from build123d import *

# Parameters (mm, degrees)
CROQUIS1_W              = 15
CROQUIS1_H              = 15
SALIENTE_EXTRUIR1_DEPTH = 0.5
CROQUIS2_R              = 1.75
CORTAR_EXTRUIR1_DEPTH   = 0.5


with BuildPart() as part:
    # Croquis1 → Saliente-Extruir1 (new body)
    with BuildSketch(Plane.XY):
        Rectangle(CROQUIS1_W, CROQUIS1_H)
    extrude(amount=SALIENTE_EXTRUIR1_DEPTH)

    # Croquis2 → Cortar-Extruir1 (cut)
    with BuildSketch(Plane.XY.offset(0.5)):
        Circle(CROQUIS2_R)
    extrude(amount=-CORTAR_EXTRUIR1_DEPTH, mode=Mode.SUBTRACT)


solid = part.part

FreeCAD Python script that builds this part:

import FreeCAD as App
import Part
import Sketcher
from FreeCAD import Vector

doc = App.newDocument("Part")
body = doc.addObject("PartDesign::Body", "Body")

# Sketch on XY plane
sketch1 = doc.addObject("Sketcher::SketchObject", "Sketch")
body.addObject(sketch1)
sketch1.AttachmentSupport = (doc.XY_Plane, [""])
sketch1.MapMode = "FlatFace"
sketch1.addGeometry(Part.LineSegment(Vector(-8, 8, 0), Vector(-8, -8, 0)), False)
sketch1.addGeometry(Part.LineSegment(Vector(-8, -8, 0), Vector(8, -8, 0)), False)
sketch1.addGeometry(Part.LineSegment(Vector(8, -8, 0), Vector(8, 8, 0)), False)
sketch1.addGeometry(Part.LineSegment(Vector(8, 8, 0), Vector(-8, 8, 0)), False)
sketch1.addConstraint(Sketcher.Constraint("Coincident", 0, 2, 1, 1))
sketch1.addConstraint(Sketcher.Constraint("Coincident", 1, 2, 2, 1))
sketch1.addConstraint(Sketcher.Constraint("Coincident", 2, 2, 3, 1))
sketch1.addConstraint(Sketcher.Constraint("Coincident", 3, 2, 0, 1))
sketch1.addConstraint(Sketcher.Constraint("Vertical", 0))
sketch1.addConstraint(Sketcher.Constraint("Horizontal", 1))
sketch1.addConstraint(Sketcher.Constraint("Vertical", 2))
sketch1.addConstraint(Sketcher.Constraint("Horizontal", 3))
sketch1.addConstraint(Sketcher.Constraint("Symmetric", 0, 2, 2, 2, -1, 1))
sketch1.addConstraint(Sketcher.Constraint("Equal", 3, 0))
sketch1.addConstraint(Sketcher.Constraint("DistanceX", 1, 1, 1, 2, 15.0))
pad1 = doc.addObject("PartDesign::Pad", "Pad")
body.addObject(pad1)
pad1.Profile = sketch1
pad1.Length = 0.5

# Sketch on XY plane
sketch2 = doc.addObject("Sketcher::SketchObject", "Sketch001")
body.addObject(sketch2)
sketch2.AttachmentSupport = (doc.XY_Plane, [""])
sketch2.MapMode = "FlatFace"
sketch2.AttachmentOffset = App.Placement(Vector(0, 0, 0.5), App.Rotation())
sketch2.addGeometry(Part.Circle(Vector(0, 0, 0), Vector(0, 0, 1), 1.8), False)
sketch2.addConstraint(Sketcher.Constraint("Coincident", 0, 3, -1, 1))
sketch2.addConstraint(Sketcher.Constraint("Diameter", 0, 3.5))
pocket1 = doc.addObject("PartDesign::Pocket", "Pocket")
body.addObject(pocket1)
pocket1.Profile = sketch2
pocket1.Length = 0.5

doc.recompute()
